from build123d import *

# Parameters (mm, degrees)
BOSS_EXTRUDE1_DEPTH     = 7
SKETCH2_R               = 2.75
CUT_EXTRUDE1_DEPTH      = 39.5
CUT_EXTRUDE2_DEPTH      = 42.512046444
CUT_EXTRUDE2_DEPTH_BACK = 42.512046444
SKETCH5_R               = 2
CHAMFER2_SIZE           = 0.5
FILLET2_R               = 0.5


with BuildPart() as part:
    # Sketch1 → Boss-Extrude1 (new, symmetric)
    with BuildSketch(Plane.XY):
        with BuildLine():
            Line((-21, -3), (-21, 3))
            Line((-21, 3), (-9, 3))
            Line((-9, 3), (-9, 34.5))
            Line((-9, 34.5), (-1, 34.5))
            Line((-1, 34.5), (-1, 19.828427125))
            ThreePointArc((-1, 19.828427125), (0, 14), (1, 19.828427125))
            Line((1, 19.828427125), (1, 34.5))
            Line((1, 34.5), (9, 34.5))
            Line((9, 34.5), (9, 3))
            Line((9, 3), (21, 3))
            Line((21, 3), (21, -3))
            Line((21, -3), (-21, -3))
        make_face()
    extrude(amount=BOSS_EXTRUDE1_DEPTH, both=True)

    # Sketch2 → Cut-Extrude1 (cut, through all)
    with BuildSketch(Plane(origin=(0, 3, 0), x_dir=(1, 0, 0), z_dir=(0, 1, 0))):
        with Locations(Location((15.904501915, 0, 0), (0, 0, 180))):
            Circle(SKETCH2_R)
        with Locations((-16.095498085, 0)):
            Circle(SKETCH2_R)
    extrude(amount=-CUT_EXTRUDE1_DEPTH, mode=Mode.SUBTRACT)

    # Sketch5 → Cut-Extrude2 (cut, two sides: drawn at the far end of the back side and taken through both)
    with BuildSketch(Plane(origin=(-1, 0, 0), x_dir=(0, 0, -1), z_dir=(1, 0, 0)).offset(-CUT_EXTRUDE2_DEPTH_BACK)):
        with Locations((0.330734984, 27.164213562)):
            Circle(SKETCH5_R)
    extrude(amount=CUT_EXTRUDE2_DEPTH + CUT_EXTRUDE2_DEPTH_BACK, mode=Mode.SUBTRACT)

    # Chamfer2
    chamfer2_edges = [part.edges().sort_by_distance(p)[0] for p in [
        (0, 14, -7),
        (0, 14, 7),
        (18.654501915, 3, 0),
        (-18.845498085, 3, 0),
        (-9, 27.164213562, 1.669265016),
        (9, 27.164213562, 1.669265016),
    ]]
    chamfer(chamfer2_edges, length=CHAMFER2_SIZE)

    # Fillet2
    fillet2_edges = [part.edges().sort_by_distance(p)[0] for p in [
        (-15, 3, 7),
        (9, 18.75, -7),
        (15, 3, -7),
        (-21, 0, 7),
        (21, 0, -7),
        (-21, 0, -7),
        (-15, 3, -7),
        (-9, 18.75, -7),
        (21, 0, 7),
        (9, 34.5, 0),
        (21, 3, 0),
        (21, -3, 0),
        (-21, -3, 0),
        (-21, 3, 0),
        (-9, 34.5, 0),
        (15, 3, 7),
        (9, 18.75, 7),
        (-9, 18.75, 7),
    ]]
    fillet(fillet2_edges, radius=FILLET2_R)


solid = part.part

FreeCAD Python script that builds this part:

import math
import FreeCAD as App
import Part
import Sketcher

V = App.Vector
Q = App.Units.Quantity


def edges_at(feature, points):
    """Names of the edges that pass closest to the given points."""
    edges = feature.Shape.Edges
    near = lambda p: min(range(len(edges)), key=lambda i: edges[i].distToShape(Part.Vertex(*p))[0])
    return sorted({f"Edge{near(p) + 1}" for p in points})

doc = App.newDocument("Part")
body = doc.addObject("PartDesign::Body", "Body")

sketch1 = doc.addObject("Sketcher::SketchObject", "Sketch")
body.addObject(sketch1)
sketch1.AttachmentSupport = (doc.XY_Plane, [""])
sketch1.MapMode = "FlatFace"
sketch1.addGeometry([
    Part.LineSegment(V(-21, 3, 0), V(-21, -3, 0)),
    Part.LineSegment(V(-21, -3, 0), V(21, -3, 0)),
    Part.LineSegment(V(21, -3, 0), V(21, 3, 0)),
    Part.LineSegment(V(21, 3, 0), V(9, 3, 0)),
    Part.LineSegment(V(9, 3, 0), V(9, 34.5, 0)),
    Part.LineSegment(V(9, 34.5, 0), V(1, 34.5, 0)),
    Part.LineSegment(V(1, 34.5, 0), V(1, 19.828427, 0)),
    Part.ArcOfCircle(Part.Circle(V(0, 17, 0), V(0, 0, 1), 3), math.radians(109.471221), math.radians(430.528779)),
    Part.LineSegment(V(-1, 19.828427, 0), V(-1, 34.5, 0)),
    Part.LineSegment(V(-1, 34.5, 0), V(-9, 34.5, 0)),
    Part.LineSegment(V(-9, 34.5, 0), V(-9, 3, 0)),
    Part.LineSegment(V(-9, 3, 0), V(-21, 3, 0)),
], False)
sketch1.addConstraint([
    Sketcher.Constraint("Coincident", 0, 2, 1, 1),
    Sketcher.Constraint("Coincident", 1, 2, 2, 1),
    Sketcher.Constraint("Coincident", 2, 2, 3, 1),
    Sketcher.Constraint("Coincident", 3, 2, 4, 1),
    Sketcher.Constraint("Coincident", 4, 2, 5, 1),
    Sketcher.Constraint("Coincident", 5, 2, 6, 1),
    Sketcher.Constraint("Coincident", 6, 2, 7, 2),
    Sketcher.Constraint("Coincident", 7, 1, 8, 1),
    Sketcher.Constraint("Coincident", 8, 2, 9, 1),
    Sketcher.Constraint("Coincident", 9, 2, 10, 1),
    Sketcher.Constraint("Coincident", 10, 2, 11, 1),
    Sketcher.Constraint("Coincident", 11, 2, 0, 1),
    Sketcher.Constraint("Vertical", 0),
    Sketcher.Constraint("Horizontal", 1),
    Sketcher.Constraint("Vertical", 2),
    Sketcher.Constraint("Horizontal", 3),
    Sketcher.Constraint("Vertical", 4),
    Sketcher.Constraint("Horizontal", 5),
    Sketcher.Constraint("Vertical", 6),
    Sketcher.Constraint("Vertical", 8),
    Sketcher.Constraint("Horizontal", 9),
    Sketcher.Constraint("Vertical", 10),
    Sketcher.Constraint("Horizontal", 11),
    Sketcher.Constraint("Symmetric", 0, 2, 2, 2, -1, 1),
    Sketcher.Constraint("Symmetric", 6, 2, 7, 1, -2),
    Sketcher.Constraint("Symmetric", 4, 2, 9, 2, -2),
    Sketcher.Constraint("Horizontal", 3, 2, 10, 2),
    Sketcher.Constraint("Radius", 7, Q("3 mm")),
    Sketcher.Constraint("DistanceX", 1, 1, 1, 2, Q("42 mm")),
    Sketcher.Constraint("DistanceX", 3, 2, 3, 1, Q("12 mm")),
    Sketcher.Constraint("DistanceX", 5, 2, 5, 1, Q("8 mm")),
    Sketcher.Constraint("DistanceY", 0, 2, 0, 1, Q("6 mm")),
    Sketcher.Constraint("DistanceY", 4, 1, 4, 2, Q("31.5 mm")),
    Sketcher.Constraint("DistanceY", -1, 1, 7, 3, Q("17 mm")),
])
pad1 = doc.addObject("PartDesign::Pad", "Pad")
body.addObject(pad1)
pad1.Profile = sketch1
pad1.Length = 14
pad1.Midplane = True

sketch2 = doc.addObject("Sketcher::SketchObject", "Sketch001")
body.addObject(sketch2)
sketch2.AttachmentSupport = (doc.XZ_Plane, [""])
sketch2.MapMode = "FlatFace"
sketch2.AttachmentOffset = App.Placement(V(0, 0, -3), App.Rotation())
sketch2.addGeometry([
    Part.Circle(V(15.904502, 0, 0), V(0, 0, 1), 2.75),
    Part.Circle(V(-16.095498, 0, 0), V(0, 0, 1), 2.75),
], False)
sketch2.addConstraint([
    Sketcher.Constraint("Equal", 0, 1),
    Sketcher.Constraint("PointOnObject", 0, 3, -1),
    Sketcher.Constraint("PointOnObject", 1, 3, -1),
    Sketcher.Constraint("Diameter", 0, Q("5.5 mm")),
    Sketcher.Constraint("DistanceX", 1, 3, 0, 3, Q("32 mm")),
    Sketcher.Constraint("DistanceX", -1, 1, 0, 3, Q("15.904502 mm")),
])
pocket1 = doc.addObject("PartDesign::Pocket", "Pocket")
body.addObject(pocket1)
pocket1.Profile = sketch2
pocket1.Type = "ThroughAll"
pocket1.Reversed = True

sketch3 = doc.addObject("Sketcher::SketchObject", "Sketch002")
body.addObject(sketch3)
sketch3.AttachmentSupport = (doc.YZ_Plane, [""])
sketch3.MapMode = "FlatFace"
sketch3.AttachmentOffset = App.Placement(V(0, 0, -1), App.Rotation())
sketch3.addGeometry(Part.Circle(V(27.164214, -0.330735, 0), V(0, 0, 1), 2), False)
sketch3.addConstraint([
    Sketcher.Constraint("Diameter", 0, Q("4 mm")),
    Sketcher.Constraint("DistanceX", -1, 1, 0, 3, Q("27.164214 mm")),
    Sketcher.Constraint("DistanceY", 0, 3, -1, 1, Q("0.330735 mm")),
])
pocket2 = doc.addObject("PartDesign::Pocket", "Pocket001")
body.addObject(pocket2)
pocket2.Profile = sketch3
pocket2.Type = "ThroughAll"
pocket2.Midplane = True
doc.recompute()

chamfer = doc.addObject("PartDesign::Chamfer", "Chamfer")
body.addObject(chamfer)
chamfer.Base = (pocket2, edges_at(pocket2, [
    (0, 14, -7),
    (0, 14, 7),
    (18.655, 3, 0),
    (-18.845, 3, 0),
    (-9, 27.164, 1.669),
    (9, 27.164, 1.669),
]))
chamfer.Size = 0.5
doc.recompute()

fillet = doc.addObject("PartDesign::Fillet", "Fillet")
body.addObject(fillet)
fillet.Base = (chamfer, edges_at(chamfer, [
    (-15, 3, 7),
    (9, 18.75, -7),
    (15, 3, -7),
    (-21, 0, 7),
    (21, 0, -7),
    (-21, 0, -7),
    (-15, 3, -7),
    (-9, 18.75, -7),
    (21, 0, 7),
    (9, 34.5, 0),
    (21, 3, 0),
    (21, -3, 0),
    (-21, -3, 0),
    (-21, 3, 0),
    (-9, 34.5, 0),
    (15, 3, 7),
    (9, 18.75, 7),
    (-9, 18.75, 7),
]))
fillet.Radius = 0.5

doc.recompute()
